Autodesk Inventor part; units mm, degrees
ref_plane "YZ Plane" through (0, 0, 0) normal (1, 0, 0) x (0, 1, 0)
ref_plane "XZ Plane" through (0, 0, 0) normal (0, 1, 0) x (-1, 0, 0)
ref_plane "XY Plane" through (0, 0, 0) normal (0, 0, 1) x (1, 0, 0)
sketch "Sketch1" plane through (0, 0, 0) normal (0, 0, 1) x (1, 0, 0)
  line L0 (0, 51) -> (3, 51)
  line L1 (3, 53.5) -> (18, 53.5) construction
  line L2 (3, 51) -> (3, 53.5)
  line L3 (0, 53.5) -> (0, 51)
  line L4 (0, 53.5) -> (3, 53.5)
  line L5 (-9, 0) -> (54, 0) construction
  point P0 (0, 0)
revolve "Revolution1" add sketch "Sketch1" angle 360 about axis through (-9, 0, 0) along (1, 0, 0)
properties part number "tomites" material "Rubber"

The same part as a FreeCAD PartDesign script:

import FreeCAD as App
import Part
import Sketcher

V = App.Vector


def add_polygon(sketch, points):
    """Adds a closed chain of lines whose ends are joined by coincident constraints."""
    first, n = sketch.GeometryCount, len(points)
    for a, b in zip(points, points[1:] + points[:1]):
        sketch.addGeometry(Part.LineSegment(App.Vector(*a, 0), App.Vector(*b, 0)), False)
    for i in range(n):
        sketch.addConstraint(Sketcher.Constraint("Coincident", first + i, 2, first + (i + 1) % n, 1))

doc = App.newDocument("Part")
params = doc.addObject("Spreadsheet::Sheet", "Params")
for row, (alias, value) in enumerate([
    ("sketch1_width", "3 mm"),
    ("sketch1_height", "2.5 mm"),
    ("revolution_angle", "360 deg"),
], start=1):
    params.set(f"A{row}", alias)
    params.set(f"B{row}", "=" + value)
    params.setAlias(f"B{row}", alias)

body = doc.addObject("PartDesign::Body", "Body")

sketch1 = body.newObject("Sketcher::SketchObject", "Sketch")
sketch1.AttachmentSupport = (doc.getObject("XY_Plane"), [""])
sketch1.MapMode = "FlatFace"
add_polygon(sketch1, [(0, 53.5), (0, 51), (3, 51), (3, 53.5)])
sketch1.addConstraint([
    Sketcher.Constraint("Vertical", 0),
    Sketcher.Constraint("Horizontal", 1),
    Sketcher.Constraint("Vertical", 2),
    Sketcher.Constraint("Horizontal", 3),
    Sketcher.Constraint("PointOnObject", 0, 2, -2),
    Sketcher.Constraint("DistanceX", 1, 1, 1, 2, 3.0),
    Sketcher.Constraint("DistanceY", 0, 2, 0, 1, 2.5),
    Sketcher.Constraint("DistanceY", -1, 1, 0, 2, 51.0),
])
sketch1.setExpression("Constraints[9]", "Params.sketch1_width")
sketch1.setExpression("Constraints[10]", "Params.sketch1_height")
revolution = body.newObject("PartDesign::Revolution", "Revolution")
revolution.Profile = sketch1
revolution.ReferenceAxis = (sketch1, ["H_Axis"])
revolution.setExpression("Angle", "Params.revolution_angle")

doc.recompute()
